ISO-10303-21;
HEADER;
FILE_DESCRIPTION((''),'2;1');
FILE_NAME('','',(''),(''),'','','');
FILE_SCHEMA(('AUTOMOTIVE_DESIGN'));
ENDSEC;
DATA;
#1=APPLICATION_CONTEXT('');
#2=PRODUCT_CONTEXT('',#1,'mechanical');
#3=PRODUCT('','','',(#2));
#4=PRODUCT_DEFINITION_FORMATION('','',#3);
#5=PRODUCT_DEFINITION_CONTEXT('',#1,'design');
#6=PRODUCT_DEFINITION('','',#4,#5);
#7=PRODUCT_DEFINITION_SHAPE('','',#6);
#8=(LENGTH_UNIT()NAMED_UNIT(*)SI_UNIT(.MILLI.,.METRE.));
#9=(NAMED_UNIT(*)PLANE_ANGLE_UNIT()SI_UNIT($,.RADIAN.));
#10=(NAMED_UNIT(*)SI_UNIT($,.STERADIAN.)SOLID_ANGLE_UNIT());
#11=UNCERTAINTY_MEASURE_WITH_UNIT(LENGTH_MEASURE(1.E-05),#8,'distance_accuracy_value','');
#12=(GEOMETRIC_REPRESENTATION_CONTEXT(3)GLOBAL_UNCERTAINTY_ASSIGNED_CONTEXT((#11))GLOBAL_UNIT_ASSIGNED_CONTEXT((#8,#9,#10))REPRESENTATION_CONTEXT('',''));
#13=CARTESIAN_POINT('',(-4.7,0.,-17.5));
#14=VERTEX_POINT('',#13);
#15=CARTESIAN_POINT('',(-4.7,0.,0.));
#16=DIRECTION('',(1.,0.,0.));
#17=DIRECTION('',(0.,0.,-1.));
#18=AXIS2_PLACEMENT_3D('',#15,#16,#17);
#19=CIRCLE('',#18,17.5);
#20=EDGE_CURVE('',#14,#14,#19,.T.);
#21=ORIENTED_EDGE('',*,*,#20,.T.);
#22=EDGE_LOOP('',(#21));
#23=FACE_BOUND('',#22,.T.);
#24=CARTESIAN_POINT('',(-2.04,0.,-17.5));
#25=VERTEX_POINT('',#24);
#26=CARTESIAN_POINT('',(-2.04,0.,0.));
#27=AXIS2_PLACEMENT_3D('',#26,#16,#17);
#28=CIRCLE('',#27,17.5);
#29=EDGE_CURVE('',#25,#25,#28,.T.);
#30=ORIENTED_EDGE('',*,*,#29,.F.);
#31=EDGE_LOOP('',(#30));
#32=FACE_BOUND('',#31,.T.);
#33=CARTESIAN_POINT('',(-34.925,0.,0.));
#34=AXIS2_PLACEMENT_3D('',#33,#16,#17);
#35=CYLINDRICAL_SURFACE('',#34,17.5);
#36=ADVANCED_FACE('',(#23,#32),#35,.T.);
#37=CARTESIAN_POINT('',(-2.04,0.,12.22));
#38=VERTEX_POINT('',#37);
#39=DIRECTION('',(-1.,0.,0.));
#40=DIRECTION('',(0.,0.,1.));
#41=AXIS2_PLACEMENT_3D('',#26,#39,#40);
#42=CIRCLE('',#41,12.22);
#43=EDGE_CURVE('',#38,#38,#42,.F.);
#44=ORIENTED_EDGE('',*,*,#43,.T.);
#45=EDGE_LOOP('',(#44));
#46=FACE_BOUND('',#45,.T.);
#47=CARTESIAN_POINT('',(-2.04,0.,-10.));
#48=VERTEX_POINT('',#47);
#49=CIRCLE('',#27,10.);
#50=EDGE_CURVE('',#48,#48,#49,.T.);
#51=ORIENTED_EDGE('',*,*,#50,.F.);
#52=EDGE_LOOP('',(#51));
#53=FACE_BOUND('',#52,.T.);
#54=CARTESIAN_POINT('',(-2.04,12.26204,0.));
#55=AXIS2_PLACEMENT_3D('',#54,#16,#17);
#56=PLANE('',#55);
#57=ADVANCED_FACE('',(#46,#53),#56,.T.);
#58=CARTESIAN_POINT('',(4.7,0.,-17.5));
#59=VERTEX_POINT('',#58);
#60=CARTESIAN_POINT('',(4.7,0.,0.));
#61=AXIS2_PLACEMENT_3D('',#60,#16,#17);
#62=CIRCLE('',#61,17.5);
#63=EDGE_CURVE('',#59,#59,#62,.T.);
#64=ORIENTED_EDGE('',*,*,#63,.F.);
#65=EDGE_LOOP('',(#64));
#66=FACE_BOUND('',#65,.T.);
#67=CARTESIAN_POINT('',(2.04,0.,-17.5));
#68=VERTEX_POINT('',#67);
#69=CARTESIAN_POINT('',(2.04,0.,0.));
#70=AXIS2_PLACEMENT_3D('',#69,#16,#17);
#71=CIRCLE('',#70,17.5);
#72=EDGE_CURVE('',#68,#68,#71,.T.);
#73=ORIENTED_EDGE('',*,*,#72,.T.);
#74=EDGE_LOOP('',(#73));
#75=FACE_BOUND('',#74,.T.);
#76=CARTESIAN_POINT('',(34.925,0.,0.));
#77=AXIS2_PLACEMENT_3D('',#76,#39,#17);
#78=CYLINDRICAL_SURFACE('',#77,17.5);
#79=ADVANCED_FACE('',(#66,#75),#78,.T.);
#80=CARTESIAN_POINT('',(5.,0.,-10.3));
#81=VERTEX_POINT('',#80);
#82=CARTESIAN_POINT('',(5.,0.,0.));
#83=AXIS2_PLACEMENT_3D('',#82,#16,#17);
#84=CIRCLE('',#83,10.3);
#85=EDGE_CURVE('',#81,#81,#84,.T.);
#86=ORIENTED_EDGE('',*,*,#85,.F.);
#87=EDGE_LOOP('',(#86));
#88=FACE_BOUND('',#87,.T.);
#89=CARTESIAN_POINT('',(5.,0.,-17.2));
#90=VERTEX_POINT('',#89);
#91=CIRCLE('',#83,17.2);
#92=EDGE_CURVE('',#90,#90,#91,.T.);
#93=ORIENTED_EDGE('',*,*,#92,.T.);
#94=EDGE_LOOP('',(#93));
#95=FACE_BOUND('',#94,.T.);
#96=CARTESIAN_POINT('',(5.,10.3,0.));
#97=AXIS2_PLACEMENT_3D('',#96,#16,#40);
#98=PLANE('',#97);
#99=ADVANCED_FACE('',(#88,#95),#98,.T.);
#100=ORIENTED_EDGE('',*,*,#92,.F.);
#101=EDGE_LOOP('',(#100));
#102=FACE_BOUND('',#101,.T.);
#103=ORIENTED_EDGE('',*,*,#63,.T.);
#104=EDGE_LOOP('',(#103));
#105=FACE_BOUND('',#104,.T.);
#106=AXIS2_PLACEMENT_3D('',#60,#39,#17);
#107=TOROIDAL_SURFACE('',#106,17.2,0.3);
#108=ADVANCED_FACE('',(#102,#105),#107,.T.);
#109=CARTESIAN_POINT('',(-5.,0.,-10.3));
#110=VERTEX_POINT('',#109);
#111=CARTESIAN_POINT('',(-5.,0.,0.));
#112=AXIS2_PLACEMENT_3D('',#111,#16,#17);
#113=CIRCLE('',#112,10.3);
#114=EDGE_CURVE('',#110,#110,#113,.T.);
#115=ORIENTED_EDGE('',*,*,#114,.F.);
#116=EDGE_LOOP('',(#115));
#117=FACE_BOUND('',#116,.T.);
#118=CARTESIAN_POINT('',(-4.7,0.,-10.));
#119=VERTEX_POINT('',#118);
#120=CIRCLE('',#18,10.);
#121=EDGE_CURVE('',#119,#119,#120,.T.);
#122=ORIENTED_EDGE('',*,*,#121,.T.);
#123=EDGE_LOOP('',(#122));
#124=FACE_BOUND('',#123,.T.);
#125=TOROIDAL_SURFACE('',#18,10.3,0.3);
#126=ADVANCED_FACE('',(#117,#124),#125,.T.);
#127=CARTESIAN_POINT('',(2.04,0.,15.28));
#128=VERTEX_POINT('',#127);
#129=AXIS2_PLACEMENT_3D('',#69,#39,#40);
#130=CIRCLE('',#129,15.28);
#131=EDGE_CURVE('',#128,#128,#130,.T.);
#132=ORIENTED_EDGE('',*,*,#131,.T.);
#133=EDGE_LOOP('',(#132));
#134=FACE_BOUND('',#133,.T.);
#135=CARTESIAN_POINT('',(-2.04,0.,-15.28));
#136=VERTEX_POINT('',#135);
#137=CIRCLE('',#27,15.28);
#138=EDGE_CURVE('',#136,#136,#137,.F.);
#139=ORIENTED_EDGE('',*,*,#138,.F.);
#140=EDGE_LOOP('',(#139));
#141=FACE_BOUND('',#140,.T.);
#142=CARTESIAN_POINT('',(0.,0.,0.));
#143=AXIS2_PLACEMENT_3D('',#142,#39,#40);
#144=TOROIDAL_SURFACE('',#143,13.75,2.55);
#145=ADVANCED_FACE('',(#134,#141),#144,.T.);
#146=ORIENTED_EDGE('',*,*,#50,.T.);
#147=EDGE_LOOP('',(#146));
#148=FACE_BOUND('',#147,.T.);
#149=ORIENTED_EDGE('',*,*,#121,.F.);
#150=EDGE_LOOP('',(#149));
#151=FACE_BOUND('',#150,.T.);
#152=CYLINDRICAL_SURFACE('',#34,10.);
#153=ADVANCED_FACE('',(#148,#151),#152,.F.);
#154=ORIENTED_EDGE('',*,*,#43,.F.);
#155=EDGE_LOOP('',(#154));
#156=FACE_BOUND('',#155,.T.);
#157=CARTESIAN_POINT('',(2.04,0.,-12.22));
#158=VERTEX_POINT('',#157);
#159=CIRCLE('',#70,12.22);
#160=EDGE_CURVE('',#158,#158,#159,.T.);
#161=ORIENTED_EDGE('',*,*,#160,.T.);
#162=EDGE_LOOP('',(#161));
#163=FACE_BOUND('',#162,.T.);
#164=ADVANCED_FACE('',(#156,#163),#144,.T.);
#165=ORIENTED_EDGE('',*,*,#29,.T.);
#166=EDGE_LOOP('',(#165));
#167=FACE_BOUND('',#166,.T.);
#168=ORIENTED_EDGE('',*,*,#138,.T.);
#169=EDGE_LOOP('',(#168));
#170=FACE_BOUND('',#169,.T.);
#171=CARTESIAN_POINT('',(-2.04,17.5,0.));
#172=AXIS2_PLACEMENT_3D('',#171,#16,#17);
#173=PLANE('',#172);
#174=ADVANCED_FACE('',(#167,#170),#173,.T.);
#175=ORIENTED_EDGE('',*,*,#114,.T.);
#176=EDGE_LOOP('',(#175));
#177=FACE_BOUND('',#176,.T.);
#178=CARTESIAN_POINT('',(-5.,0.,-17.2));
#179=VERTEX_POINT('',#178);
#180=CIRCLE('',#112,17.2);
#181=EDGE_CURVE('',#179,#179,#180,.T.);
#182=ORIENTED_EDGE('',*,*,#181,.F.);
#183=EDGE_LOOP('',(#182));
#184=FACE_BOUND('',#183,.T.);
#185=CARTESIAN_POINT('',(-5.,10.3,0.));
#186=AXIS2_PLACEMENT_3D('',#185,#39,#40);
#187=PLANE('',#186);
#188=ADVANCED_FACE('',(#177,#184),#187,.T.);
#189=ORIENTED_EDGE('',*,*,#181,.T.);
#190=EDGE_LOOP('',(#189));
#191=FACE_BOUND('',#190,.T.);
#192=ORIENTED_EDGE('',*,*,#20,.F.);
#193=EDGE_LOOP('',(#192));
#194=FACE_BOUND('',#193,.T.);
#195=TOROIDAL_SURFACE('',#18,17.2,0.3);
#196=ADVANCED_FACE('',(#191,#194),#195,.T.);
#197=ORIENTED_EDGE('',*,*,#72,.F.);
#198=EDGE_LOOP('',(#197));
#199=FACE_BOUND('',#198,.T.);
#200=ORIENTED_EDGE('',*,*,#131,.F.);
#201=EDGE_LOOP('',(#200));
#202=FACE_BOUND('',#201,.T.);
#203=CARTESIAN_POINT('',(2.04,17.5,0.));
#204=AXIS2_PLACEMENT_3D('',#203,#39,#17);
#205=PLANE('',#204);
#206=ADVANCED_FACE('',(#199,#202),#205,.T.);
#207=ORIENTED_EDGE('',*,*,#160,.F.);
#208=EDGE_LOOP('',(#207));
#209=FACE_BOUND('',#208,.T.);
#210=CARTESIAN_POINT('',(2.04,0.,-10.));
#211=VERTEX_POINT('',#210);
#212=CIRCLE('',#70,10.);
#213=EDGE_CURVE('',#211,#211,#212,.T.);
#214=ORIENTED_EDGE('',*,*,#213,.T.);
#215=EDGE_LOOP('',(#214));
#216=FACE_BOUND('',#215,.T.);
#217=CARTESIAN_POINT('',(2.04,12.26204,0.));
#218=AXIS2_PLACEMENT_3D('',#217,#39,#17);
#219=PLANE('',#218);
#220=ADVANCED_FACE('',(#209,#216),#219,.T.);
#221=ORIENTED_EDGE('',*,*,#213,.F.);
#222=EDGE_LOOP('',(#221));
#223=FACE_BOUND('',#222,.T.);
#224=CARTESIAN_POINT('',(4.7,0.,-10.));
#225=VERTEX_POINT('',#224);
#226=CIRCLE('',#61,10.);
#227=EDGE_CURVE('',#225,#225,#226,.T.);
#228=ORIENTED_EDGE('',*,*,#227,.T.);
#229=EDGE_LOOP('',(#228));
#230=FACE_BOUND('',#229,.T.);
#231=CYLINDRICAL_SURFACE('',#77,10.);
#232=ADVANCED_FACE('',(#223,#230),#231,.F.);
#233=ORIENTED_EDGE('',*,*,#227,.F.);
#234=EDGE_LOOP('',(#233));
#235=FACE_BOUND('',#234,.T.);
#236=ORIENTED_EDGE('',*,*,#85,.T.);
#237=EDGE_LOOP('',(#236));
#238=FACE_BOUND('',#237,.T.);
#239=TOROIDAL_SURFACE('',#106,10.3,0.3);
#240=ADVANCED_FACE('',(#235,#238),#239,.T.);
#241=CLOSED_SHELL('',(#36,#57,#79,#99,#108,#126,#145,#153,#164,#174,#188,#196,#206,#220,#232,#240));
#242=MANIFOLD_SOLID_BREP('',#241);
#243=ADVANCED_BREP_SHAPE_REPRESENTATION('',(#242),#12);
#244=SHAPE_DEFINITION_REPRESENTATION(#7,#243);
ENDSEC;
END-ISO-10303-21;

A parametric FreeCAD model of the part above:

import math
import FreeCAD as App
import Part
import Sketcher
from FreeCAD import Vector

doc = App.newDocument("Part")
params = doc.addObject("Spreadsheet::Sheet", "Params")
for row, (alias, value) in enumerate([
    ("sketch1_radius", "0.3 mm"),
    ("sketch1_height", "6.9 mm"),
    ("sketch1_width", "2.66 mm"),
    ("revolution_angle", "360 deg"),
    ("sketch2_diameter", "5.1 mm"),
    ("revolution2_angle", "360 deg"),
], start=1):
    params.set(f"A{row}", alias)
    params.set(f"B{row}", "=" + value)
    params.setAlias(f"B{row}", alias)

body = doc.addObject("PartDesign::Body", "Body")

# Sketch on XY plane
sketch1 = body.newObject("Sketcher::SketchObject", "Sketch")
sketch1.AttachmentSupport = (doc.getObject("XY_Plane"), [""])
sketch1.MapMode = "FlatFace"
sketch1.addGeometry([
    Part.LineSegment(Vector(-2.04, 10, 0), Vector(-2.04, 12.26, 0)),  # 0
    Part.ArcOfCircle(Part.Circle(Vector(0, 13.75, 0), Vector(0, 0, 1), 2.52), math.radians(144), math.radians(216)),  # 1
    Part.LineSegment(Vector(-2.04, 15.24, 0), Vector(-2.04, 17.5, 0)),  # 2
    Part.LineSegment(Vector(-2.04, 17.5, 0), Vector(-4.7, 17.5, 0)),  # 3
    Part.ArcOfCircle(Part.Circle(Vector(-4.7, 17.2, 0), Vector(0, 0, 1), 0.3), math.radians(90), math.radians(180)),  # 4
    Part.LineSegment(Vector(-5, 17.2, 0), Vector(-5, 10.3, 0)),  # 5
    Part.ArcOfCircle(Part.Circle(Vector(-4.7, 10.3, 0), Vector(0, 0, 1), 0.3), math.radians(-180), math.radians(-90)),  # 6
    Part.LineSegment(Vector(-4.7, 10, 0), Vector(-2.04, 10, 0)),  # 7
], False)
sketch1.addConstraint([
    Sketcher.Constraint("Coincident", 0, 2, 1, 2),
    Sketcher.Constraint("Coincident", 1, 1, 2, 1),
    Sketcher.Constraint("Coincident", 2, 2, 3, 1),
    Sketcher.Constraint("Tangent", 3, 2, 4, 1),
    Sketcher.Constraint("Tangent", 4, 2, 5, 1),
    Sketcher.Constraint("Tangent", 5, 2, 6, 1),
    Sketcher.Constraint("Tangent", 6, 2, 7, 1),
    Sketcher.Constraint("Coincident", 7, 2, 0, 1),
    Sketcher.Constraint("Vertical", 0),
    Sketcher.Constraint("Vertical", 2),
    Sketcher.Constraint("Horizontal", 3),
    Sketcher.Constraint("Vertical", 5),
    Sketcher.Constraint("Horizontal", 7),
    Sketcher.Constraint("Equal", 4, 6),
    Sketcher.Constraint("PointOnObject", 1, 3, -2),
    Sketcher.Constraint("Vertical", 0, 2, 1, 1),
    Sketcher.Constraint("Equal", 0, 2),
    Sketcher.Constraint("Radius", 4, 0.3),
    Sketcher.Constraint("DistanceY", 5, 2, 5, 1, 6.9),
    Sketcher.Constraint("DistanceX", 4, 2, -1, 1, 5.0),
    Sketcher.Constraint("DistanceY", -1, 1, 6, 2, 10.0),
    Sketcher.Constraint("Radius", 1, 2.525),
    Sketcher.Constraint("DistanceX", 3, 2, 3, 1, 2.66),
])
sketch1.setExpression("Constraints[17]", "Params.sketch1_radius")
sketch1.setExpression("Constraints[18]", "Params.sketch1_height")
sketch1.setExpression("Constraints[22]", "Params.sketch1_width")
revolution = body.newObject("PartDesign::Revolution", "Revolution")
revolution.Profile = sketch1
revolution.ReferenceAxis = (sketch1, ["H_Axis"])
revolution.setExpression("Angle", "Params.revolution_angle")

# Sketch on XY plane
sketch2 = body.newObject("Sketcher::SketchObject", "Sketch001")
sketch2.AttachmentSupport = (doc.getObject("XY_Plane"), [""])
sketch2.MapMode = "FlatFace"
sketch2.addGeometry(Part.Circle(Vector(0, 13.8, 0), Vector(0, 0, 1), 2.5), False)
sketch2.addConstraint([
    Sketcher.Constraint("PointOnObject", 0, 3, -2),
    Sketcher.Constraint("Diameter", 0, 5.1),
    Sketcher.Constraint("DistanceY", -1, 1, 0, 3, 13.75),
])
sketch2.setExpression("Constraints[1]", "Params.sketch2_diameter")
revolution2 = body.newObject("PartDesign::Revolution", "Revolution001")
revolution2.Profile = sketch2
revolution2.ReferenceAxis = (sketch2, ["H_Axis"])
revolution2.setExpression("Angle", "Params.revolution2_angle")
doc.recompute()

mirrored = body.newObject("PartDesign::Mirrored", "Mirrored")
mirrored.Originals = [revolution]
mirrored.MirrorPlane = (doc.getObject("YZ_Plane"), [""])
body.Tip = mirrored

doc.recompute()
